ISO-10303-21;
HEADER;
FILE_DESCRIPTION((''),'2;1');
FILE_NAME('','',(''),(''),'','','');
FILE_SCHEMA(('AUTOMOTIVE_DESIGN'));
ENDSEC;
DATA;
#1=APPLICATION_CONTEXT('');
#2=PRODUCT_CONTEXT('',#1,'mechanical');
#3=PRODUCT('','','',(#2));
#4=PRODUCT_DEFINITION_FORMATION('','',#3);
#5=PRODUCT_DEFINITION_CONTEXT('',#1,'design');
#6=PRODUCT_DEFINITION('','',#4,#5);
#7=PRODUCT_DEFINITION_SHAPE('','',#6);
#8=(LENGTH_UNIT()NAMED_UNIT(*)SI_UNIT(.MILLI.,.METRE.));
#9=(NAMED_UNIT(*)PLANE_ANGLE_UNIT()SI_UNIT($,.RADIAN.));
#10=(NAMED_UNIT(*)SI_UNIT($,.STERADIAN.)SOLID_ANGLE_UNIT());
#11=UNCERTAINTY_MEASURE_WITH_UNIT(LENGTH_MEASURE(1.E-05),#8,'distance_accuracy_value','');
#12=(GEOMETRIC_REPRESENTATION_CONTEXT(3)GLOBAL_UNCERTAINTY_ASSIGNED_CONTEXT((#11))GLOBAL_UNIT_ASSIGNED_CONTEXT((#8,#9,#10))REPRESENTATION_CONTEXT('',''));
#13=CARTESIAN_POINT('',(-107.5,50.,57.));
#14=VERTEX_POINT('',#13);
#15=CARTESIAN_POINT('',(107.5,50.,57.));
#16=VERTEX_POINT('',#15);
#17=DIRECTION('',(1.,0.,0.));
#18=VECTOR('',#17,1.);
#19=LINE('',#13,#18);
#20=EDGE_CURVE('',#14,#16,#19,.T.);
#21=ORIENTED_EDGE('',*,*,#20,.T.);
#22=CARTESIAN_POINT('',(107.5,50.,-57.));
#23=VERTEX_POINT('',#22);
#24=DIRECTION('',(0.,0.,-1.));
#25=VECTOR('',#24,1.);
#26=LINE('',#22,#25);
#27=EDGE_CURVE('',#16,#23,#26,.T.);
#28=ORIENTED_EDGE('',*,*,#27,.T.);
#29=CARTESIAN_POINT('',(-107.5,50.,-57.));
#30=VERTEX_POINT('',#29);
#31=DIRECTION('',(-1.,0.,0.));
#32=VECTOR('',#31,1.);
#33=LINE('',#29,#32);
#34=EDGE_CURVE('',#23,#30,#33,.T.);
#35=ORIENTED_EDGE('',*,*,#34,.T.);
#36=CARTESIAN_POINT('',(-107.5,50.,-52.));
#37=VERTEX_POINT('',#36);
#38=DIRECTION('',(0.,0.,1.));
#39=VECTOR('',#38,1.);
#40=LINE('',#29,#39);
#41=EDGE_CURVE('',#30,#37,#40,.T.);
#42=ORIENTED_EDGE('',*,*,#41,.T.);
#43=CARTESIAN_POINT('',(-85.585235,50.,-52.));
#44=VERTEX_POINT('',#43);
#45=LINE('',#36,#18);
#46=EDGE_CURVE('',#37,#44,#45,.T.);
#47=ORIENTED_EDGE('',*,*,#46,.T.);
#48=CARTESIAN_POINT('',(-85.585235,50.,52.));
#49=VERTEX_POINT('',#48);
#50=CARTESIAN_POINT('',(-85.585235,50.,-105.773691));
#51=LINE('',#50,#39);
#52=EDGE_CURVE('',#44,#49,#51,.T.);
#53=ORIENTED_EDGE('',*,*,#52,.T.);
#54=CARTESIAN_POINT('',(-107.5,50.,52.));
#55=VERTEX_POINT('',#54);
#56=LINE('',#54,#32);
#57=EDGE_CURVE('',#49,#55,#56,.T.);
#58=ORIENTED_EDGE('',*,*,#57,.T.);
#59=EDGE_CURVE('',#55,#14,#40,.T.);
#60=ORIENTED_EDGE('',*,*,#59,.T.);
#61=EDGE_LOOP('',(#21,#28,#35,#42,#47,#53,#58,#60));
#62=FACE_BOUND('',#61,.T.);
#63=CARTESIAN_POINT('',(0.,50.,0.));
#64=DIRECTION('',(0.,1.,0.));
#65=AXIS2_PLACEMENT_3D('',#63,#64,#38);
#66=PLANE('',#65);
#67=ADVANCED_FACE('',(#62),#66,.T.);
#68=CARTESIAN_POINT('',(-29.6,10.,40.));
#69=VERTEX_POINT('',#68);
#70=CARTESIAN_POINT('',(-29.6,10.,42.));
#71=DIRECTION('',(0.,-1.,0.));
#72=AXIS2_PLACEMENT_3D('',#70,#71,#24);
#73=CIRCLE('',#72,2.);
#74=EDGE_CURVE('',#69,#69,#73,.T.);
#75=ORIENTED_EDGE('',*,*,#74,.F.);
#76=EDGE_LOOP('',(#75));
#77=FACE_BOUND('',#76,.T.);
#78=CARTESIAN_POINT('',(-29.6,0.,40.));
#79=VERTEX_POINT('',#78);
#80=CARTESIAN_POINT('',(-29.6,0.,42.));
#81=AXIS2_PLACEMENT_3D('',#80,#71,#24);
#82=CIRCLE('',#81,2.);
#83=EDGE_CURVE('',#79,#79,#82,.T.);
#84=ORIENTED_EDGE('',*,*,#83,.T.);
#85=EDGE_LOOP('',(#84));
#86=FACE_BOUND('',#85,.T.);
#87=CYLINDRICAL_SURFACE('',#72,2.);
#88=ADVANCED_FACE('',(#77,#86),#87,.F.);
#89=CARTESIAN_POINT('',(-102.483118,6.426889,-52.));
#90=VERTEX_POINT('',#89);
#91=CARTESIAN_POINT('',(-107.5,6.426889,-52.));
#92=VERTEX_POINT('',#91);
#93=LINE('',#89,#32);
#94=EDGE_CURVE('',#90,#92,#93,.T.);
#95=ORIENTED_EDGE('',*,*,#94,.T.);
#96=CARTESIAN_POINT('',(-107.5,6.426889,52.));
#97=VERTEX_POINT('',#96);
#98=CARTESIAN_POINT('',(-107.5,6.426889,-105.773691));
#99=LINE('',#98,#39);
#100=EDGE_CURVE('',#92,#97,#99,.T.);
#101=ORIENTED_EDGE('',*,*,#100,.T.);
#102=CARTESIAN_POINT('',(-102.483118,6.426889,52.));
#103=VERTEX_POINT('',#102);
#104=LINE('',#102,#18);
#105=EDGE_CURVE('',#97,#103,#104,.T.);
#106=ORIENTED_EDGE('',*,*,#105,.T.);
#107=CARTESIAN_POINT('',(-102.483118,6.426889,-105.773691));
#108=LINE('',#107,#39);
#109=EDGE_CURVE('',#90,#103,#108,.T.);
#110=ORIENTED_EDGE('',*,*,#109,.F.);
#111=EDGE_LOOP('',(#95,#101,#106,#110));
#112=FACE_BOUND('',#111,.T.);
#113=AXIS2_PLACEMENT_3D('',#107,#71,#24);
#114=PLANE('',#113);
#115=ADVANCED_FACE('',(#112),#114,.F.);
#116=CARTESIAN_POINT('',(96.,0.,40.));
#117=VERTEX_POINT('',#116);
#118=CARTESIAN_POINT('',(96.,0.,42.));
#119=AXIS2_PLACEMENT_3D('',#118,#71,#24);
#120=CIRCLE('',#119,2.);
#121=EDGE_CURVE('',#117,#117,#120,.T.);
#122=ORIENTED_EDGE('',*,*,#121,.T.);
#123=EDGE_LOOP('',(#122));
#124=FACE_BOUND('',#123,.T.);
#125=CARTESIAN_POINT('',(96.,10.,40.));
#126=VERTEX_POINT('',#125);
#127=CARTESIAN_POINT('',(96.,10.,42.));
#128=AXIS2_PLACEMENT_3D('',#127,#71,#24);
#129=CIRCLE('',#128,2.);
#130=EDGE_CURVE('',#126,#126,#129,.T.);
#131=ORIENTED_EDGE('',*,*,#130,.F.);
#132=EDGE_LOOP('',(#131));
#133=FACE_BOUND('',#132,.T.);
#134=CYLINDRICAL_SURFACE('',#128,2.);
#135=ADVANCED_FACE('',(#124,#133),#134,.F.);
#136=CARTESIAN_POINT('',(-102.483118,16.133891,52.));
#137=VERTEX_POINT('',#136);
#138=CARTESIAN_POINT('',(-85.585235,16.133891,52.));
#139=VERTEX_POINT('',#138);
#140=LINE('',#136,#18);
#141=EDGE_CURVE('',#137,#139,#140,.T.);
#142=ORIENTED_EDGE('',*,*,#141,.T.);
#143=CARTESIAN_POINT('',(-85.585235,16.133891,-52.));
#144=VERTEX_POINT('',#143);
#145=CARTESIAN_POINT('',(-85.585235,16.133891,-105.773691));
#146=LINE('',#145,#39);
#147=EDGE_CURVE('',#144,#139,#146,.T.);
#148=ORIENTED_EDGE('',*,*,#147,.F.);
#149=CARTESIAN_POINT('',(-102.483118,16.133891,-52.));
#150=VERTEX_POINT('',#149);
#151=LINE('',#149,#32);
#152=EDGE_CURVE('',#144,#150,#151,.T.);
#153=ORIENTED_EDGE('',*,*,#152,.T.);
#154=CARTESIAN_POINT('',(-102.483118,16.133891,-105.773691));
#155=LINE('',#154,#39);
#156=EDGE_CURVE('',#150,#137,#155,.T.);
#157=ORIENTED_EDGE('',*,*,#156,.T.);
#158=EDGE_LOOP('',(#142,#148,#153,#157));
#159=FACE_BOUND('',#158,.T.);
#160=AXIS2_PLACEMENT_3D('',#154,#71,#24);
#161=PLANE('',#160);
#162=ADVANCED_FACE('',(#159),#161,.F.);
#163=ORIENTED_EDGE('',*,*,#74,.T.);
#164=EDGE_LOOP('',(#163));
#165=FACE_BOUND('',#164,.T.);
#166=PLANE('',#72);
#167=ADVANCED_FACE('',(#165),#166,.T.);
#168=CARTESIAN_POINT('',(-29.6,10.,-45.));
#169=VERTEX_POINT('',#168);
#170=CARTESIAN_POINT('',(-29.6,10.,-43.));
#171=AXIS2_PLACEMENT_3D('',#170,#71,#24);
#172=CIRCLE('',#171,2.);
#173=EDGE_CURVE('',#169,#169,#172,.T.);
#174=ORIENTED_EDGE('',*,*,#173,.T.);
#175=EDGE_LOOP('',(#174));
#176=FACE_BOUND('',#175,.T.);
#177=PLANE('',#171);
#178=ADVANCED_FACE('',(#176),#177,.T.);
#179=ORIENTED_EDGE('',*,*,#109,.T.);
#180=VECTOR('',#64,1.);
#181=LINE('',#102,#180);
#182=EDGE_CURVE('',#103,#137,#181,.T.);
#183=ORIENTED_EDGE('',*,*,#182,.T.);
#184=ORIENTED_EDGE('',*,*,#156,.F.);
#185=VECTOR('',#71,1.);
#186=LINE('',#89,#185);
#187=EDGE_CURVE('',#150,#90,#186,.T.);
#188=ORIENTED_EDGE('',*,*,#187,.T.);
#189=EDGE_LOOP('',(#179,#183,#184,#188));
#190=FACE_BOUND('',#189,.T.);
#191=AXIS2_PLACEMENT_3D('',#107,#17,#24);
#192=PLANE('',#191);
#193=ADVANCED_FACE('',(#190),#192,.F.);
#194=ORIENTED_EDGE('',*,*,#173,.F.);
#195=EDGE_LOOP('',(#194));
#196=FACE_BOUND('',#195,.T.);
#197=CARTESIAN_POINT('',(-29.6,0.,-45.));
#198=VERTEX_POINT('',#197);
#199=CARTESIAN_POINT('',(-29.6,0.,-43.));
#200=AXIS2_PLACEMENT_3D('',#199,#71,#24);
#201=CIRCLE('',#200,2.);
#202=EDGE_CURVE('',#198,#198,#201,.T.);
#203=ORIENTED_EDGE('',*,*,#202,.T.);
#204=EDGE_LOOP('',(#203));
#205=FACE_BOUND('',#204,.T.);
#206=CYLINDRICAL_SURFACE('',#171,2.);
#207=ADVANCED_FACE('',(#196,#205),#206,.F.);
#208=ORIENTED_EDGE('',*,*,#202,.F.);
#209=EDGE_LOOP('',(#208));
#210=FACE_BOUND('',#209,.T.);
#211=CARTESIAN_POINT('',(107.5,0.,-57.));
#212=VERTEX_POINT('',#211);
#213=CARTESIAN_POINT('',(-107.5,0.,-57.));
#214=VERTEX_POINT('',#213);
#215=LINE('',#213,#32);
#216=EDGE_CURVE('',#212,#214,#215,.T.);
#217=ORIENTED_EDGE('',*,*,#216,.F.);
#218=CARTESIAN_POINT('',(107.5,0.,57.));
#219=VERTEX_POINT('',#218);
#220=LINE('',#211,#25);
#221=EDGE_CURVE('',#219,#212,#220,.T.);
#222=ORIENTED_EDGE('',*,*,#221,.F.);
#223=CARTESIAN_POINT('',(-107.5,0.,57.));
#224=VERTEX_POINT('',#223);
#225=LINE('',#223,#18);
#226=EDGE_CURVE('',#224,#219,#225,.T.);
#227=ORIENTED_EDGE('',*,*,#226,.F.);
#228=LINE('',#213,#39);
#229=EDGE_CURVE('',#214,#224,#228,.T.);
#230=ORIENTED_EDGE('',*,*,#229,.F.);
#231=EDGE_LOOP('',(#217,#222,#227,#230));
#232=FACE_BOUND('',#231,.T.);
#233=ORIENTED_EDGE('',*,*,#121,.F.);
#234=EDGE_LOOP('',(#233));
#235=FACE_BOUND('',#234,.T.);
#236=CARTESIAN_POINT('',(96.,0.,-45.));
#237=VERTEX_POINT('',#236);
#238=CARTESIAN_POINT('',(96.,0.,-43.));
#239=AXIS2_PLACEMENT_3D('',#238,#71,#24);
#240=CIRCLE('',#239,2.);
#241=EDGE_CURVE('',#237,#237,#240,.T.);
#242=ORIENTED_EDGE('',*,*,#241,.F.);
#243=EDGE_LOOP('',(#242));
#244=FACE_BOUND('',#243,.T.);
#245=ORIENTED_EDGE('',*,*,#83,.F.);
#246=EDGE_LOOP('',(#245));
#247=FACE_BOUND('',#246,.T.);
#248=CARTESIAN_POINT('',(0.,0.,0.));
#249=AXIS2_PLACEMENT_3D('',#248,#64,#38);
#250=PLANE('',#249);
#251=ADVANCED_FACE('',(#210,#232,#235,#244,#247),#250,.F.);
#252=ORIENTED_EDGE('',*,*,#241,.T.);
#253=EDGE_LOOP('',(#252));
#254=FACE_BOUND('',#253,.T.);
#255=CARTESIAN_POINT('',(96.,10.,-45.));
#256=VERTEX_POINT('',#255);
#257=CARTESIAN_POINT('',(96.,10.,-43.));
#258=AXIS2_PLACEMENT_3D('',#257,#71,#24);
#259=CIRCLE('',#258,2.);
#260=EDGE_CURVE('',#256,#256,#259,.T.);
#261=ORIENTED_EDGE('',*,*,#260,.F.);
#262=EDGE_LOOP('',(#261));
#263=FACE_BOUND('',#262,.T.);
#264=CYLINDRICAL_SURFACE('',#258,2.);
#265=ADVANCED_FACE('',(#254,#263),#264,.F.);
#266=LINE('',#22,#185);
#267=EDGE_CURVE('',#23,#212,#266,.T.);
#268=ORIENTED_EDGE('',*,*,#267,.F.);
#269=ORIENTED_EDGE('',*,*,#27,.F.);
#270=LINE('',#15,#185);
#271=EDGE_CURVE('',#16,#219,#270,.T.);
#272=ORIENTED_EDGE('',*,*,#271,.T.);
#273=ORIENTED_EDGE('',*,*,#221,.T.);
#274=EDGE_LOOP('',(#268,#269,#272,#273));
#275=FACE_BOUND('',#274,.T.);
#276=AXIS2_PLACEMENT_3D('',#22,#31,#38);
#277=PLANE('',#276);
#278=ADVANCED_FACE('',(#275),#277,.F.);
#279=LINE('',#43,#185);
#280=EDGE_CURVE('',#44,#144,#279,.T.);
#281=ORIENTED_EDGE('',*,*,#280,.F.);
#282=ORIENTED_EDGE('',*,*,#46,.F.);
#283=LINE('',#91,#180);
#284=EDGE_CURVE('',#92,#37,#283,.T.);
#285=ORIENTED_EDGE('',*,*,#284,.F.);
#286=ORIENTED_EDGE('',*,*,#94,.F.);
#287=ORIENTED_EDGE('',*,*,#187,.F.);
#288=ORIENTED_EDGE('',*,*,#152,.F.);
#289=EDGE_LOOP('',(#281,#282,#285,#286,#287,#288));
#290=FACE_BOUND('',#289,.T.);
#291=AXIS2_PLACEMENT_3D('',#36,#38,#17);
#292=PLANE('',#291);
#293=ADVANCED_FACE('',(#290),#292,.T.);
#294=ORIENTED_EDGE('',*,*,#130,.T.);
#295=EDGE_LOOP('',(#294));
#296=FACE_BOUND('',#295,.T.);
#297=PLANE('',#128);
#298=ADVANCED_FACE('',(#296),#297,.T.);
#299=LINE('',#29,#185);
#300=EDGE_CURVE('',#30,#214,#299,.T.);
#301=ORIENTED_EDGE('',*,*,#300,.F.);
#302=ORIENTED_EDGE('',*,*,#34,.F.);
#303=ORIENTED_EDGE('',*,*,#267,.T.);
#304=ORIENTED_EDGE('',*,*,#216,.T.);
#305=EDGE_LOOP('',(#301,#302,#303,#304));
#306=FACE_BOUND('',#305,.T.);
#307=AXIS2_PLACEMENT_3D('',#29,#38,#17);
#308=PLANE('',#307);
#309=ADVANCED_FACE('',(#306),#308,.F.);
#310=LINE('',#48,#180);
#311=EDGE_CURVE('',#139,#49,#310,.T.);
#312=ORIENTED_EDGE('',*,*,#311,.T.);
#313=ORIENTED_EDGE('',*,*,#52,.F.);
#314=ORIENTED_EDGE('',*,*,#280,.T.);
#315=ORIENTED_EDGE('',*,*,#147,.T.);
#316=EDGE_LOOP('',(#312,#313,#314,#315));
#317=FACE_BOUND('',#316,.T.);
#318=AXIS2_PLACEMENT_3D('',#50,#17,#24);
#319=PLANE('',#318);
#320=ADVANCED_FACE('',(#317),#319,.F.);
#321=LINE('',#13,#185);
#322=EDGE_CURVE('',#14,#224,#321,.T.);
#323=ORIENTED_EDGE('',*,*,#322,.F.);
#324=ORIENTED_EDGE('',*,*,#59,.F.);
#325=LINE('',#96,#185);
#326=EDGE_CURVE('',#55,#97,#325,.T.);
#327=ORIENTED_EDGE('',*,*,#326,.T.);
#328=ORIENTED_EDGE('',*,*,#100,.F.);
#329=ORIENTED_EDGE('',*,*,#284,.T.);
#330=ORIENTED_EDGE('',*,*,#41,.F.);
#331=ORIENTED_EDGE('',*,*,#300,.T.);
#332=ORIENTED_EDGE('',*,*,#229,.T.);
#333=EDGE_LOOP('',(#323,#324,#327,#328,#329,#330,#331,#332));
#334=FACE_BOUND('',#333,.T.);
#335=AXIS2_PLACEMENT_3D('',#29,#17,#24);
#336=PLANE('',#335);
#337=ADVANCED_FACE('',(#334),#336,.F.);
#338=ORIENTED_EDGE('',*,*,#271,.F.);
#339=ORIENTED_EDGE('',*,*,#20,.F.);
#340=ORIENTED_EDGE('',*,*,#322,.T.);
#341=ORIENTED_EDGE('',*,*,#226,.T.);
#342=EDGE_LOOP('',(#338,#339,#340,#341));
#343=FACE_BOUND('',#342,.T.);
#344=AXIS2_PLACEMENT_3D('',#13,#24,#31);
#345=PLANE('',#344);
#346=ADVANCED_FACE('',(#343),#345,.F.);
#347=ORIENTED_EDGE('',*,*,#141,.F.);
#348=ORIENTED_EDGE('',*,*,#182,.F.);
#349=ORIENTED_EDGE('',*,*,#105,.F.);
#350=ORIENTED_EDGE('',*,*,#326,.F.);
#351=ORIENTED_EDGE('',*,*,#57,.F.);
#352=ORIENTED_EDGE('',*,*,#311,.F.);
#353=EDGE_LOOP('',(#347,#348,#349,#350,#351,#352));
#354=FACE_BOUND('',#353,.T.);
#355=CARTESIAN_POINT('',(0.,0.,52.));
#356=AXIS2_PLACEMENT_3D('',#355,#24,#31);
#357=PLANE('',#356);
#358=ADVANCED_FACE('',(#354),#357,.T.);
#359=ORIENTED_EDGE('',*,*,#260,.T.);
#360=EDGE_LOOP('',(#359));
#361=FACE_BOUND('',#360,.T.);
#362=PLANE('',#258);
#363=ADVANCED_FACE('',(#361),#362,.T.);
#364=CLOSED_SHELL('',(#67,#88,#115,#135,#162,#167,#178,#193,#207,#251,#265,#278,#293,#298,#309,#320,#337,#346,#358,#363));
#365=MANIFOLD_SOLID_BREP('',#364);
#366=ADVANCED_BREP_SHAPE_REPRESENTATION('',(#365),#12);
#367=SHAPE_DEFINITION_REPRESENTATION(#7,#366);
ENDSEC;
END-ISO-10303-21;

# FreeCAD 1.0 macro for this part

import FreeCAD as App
import Part
import Sketcher

V = App.Vector

doc = App.newDocument("Part")
body = doc.addObject("PartDesign::Body", "Body")

# Sketch on XZ plane
sketch1 = doc.addObject("Sketcher::SketchObject", "Sketch")
body.addObject(sketch1)
sketch1.AttachmentSupport = (doc.XZ_Plane, [""])
sketch1.MapMode = "FlatFace"
sketch1.addGeometry([
    Part.LineSegment(V(-108, -57, 0), V(-108, 57, 0)),
    Part.LineSegment(V(-108, 57, 0), V(108, 57, 0)),
    Part.LineSegment(V(108, 57, 0), V(108, -57, 0)),
    Part.LineSegment(V(108, -57, 0), V(-108, -57, 0)),
], False)
sketch1.addConstraint([
    Sketcher.Constraint("Coincident", 0, 2, 1, 1),
    Sketcher.Constraint("Coincident", 1, 2, 2, 1),
    Sketcher.Constraint("Coincident", 2, 2, 3, 1),
    Sketcher.Constraint("Coincident", 3, 2, 0, 1),
    Sketcher.Constraint("Vertical", 0),
    Sketcher.Constraint("Horizontal", 1),
    Sketcher.Constraint("Vertical", 2),
    Sketcher.Constraint("Horizontal", 3),
    Sketcher.Constraint("Symmetric", 0, 2, 2, 2, -1, 1),
    Sketcher.Constraint("DistanceX", 1, 1, 1, 2, 215.0),
    Sketcher.Constraint("DistanceY", 0, 1, 0, 2, 114.0),
])
pad1 = doc.addObject("PartDesign::Pad", "Pad")
body.addObject(pad1)
pad1.Profile = sketch1
pad1.Length = 50
pad1.Reversed = True

# Sketch on XY plane
sketch2 = doc.addObject("Sketcher::SketchObject", "Sketch001")
body.addObject(sketch2)
sketch2.AttachmentSupport = (doc.XY_Plane, [""])
sketch2.MapMode = "FlatFace"
sketch2.AttachmentOffset = App.Placement(V(0, 0, 52), App.Rotation())
sketch2.addGeometry([
    Part.LineSegment(V(-86, 50, 0), V(-108, 50, 0)),  # 0
    Part.LineSegment(V(-108, 50, 0), V(-108, 6, 0)),  # 1
    Part.LineSegment(V(-108, 6, 0), V(-102, 6, 0)),  # 2
    Part.LineSegment(V(-102, 6, 0), V(-102, 16, 0)),  # 3
    Part.LineSegment(V(-102, 16, 0), V(-86, 16, 0)),  # 4
    Part.LineSegment(V(-86, 16, 0), V(-86, 50, 0)),  # 5
], False)
sketch2.addConstraint([
    Sketcher.Constraint("Coincident", 0, 2, 1, 1),
    Sketcher.Constraint("Coincident", 1, 2, 2, 1),
    Sketcher.Constraint("Coincident", 2, 2, 3, 1),
    Sketcher.Constraint("Coincident", 3, 2, 4, 1),
    Sketcher.Constraint("Coincident", 4, 2, 5, 1),
    Sketcher.Constraint("Coincident", 5, 2, 0, 1),
    Sketcher.Constraint("Horizontal", 0),
    Sketcher.Constraint("Vertical", 1),
    Sketcher.Constraint("Horizontal", 2),
    Sketcher.Constraint("Vertical", 3),
    Sketcher.Constraint("Horizontal", 4),
    Sketcher.Constraint("Vertical", 5),
    Sketcher.Constraint("DistanceY", -1, 1, 0, 2, 50.0),
    Sketcher.Constraint("DistanceX", 0, 2, -1, 1, 107.5),
    Sketcher.Constraint("DistanceY", 3, 1, 3, 2, 9.707002),
    Sketcher.Constraint("DistanceY", 1, 2, 1, 1, 43.573111),
    Sketcher.Constraint("DistanceX", 0, 2, 0, 1, 21.914765),
    Sketcher.Constraint("DistanceX", 2, 1, 2, 2, 5.016882),
])
pocket1 = doc.addObject("PartDesign::Pocket", "Pocket")
body.addObject(pocket1)
pocket1.Profile = sketch2
pocket1.Length = 104

# Sketch on XZ plane
sketch3 = doc.addObject("Sketcher::SketchObject", "Sketch002")
body.addObject(sketch3)
sketch3.AttachmentSupport = (doc.XZ_Plane, [""])
sketch3.MapMode = "FlatFace"
sketch3.addGeometry([
    Part.Circle(V(96, 42, 0), V(0, 0, 1), 2),
    Part.Circle(V(-29.6, 42, 0), V(0, 0, 1), 2),
    Part.Circle(V(-29.6, -43, 0), V(0, 0, 1), 2),
    Part.Circle(V(96, -43, 0), V(0, 0, 1), 2),
], False)
sketch3.addConstraint([
    Sketcher.Constraint("Equal", 0, 1),
    Sketcher.Constraint("Equal", 1, 2),
    Sketcher.Constraint("Equal", 2, 3),
    Sketcher.Constraint("Horizontal", 0, 3, 1, 3),
    Sketcher.Constraint("Horizontal", 2, 3, 3, 3),
    Sketcher.Constraint("Vertical", 1, 3, 2, 3),
    Sketcher.Constraint("Vertical", 0, 3, 3, 3),
    Sketcher.Constraint("Diameter", 0, 4.0),
    Sketcher.Constraint("DistanceX", -1, 1, 0, 3, 96.0),
    Sketcher.Constraint("DistanceY", -1, 1, 0, 3, 42.0),
    Sketcher.Constraint("DistanceY", 2, 3, -1, 1, 43.0),
    Sketcher.Constraint("DistanceX", 1, 3, -1, 1, 29.6),
])
pocket2 = doc.addObject("PartDesign::Pocket", "Pocket001")
body.addObject(pocket2)
pocket2.Profile = sketch3
pocket2.Length = 10

doc.recompute()
